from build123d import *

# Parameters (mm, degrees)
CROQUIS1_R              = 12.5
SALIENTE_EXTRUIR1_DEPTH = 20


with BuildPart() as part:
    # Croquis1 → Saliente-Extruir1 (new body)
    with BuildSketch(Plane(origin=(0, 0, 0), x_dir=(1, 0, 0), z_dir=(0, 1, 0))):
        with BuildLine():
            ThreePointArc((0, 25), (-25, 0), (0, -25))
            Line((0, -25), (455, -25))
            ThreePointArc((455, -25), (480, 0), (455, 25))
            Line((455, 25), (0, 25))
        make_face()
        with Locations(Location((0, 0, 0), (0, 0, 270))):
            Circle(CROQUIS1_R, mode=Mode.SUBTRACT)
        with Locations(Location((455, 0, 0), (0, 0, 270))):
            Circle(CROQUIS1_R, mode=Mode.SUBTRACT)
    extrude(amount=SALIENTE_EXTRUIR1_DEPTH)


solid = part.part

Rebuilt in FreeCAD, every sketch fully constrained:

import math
import FreeCAD as App
import Part
import Sketcher

V = App.Vector
Q = App.Units.Quantity

doc = App.newDocument("Part")
params = doc.addObject("Spreadsheet::Sheet", "Params")
for row, (alias, value) in enumerate([
    ("sketch1_diameter", "25 mm"),
    ("sketch1_radius", "25 mm"),
    ("sketch1_width", "455 mm"),
    ("pad1_length", "20 mm"),
], start=1):
    params.set(f"A{row}", alias)
    params.set(f"B{row}", "=" + value)
    params.setAlias(f"B{row}", alias)

body = doc.addObject("PartDesign::Body", "Body")

sketch1 = body.newObject("Sketcher::SketchObject", "Sketch")
sketch1.AttachmentSupport = (doc.getObject("XZ_Plane"), [""])
sketch1.MapMode = "FlatFace"
sketch1.addGeometry([
    Part.ArcOfCircle(Part.Circle(V(0, 0, 0), V(0, 0, 1), 25), math.radians(90), math.radians(270)),
    Part.LineSegment(V(0, 25, 0), V(455, 25, 0)),
    Part.ArcOfCircle(Part.Circle(V(455, 0, 0), V(0, 0, 1), 25), math.radians(-90), math.radians(90)),
    Part.LineSegment(V(455, -25, 0), V(0, -25, 0)),
    Part.Circle(V(0, 0, 0), V(0, 0, 1), 12),
    Part.Circle(V(455, 0, 0), V(0, 0, 1), 12),
], False)
sketch1.addConstraint([
    Sketcher.Constraint("Tangent", 0, 1, 1, 1),
    Sketcher.Constraint("Tangent", 1, 2, 2, 2),
    Sketcher.Constraint("Tangent", 2, 1, 3, 1),
    Sketcher.Constraint("Tangent", 3, 2, 0, 2),
    Sketcher.Constraint("Horizontal", 1),
    Sketcher.Constraint("Horizontal", 3),
    Sketcher.Constraint("Coincident", 0, 3, -1, 1),
    Sketcher.Constraint("Coincident", 4, 3, -1, 1),
    Sketcher.Constraint("Coincident", 5, 3, 2, 3),
    Sketcher.Constraint("Equal", 4, 5),
    Sketcher.Constraint("Diameter", 4, Q("25 mm")),
    Sketcher.Constraint("Radius", 0, Q("25 mm")),
    Sketcher.Constraint("DistanceX", 1, 1, 1, 2, Q("455 mm")),
])
sketch1.setExpression("Constraints[10]", "Params.sketch1_diameter")
sketch1.setExpression("Constraints[11]", "Params.sketch1_radius")
sketch1.setExpression("Constraints[12]", "Params.sketch1_width")
pad1 = body.newObject("PartDesign::Pad", "Pad")
pad1.Profile = sketch1
pad1.setExpression("Length", "Params.pad1_length")
pad1.Reversed = True

doc.recompute()
